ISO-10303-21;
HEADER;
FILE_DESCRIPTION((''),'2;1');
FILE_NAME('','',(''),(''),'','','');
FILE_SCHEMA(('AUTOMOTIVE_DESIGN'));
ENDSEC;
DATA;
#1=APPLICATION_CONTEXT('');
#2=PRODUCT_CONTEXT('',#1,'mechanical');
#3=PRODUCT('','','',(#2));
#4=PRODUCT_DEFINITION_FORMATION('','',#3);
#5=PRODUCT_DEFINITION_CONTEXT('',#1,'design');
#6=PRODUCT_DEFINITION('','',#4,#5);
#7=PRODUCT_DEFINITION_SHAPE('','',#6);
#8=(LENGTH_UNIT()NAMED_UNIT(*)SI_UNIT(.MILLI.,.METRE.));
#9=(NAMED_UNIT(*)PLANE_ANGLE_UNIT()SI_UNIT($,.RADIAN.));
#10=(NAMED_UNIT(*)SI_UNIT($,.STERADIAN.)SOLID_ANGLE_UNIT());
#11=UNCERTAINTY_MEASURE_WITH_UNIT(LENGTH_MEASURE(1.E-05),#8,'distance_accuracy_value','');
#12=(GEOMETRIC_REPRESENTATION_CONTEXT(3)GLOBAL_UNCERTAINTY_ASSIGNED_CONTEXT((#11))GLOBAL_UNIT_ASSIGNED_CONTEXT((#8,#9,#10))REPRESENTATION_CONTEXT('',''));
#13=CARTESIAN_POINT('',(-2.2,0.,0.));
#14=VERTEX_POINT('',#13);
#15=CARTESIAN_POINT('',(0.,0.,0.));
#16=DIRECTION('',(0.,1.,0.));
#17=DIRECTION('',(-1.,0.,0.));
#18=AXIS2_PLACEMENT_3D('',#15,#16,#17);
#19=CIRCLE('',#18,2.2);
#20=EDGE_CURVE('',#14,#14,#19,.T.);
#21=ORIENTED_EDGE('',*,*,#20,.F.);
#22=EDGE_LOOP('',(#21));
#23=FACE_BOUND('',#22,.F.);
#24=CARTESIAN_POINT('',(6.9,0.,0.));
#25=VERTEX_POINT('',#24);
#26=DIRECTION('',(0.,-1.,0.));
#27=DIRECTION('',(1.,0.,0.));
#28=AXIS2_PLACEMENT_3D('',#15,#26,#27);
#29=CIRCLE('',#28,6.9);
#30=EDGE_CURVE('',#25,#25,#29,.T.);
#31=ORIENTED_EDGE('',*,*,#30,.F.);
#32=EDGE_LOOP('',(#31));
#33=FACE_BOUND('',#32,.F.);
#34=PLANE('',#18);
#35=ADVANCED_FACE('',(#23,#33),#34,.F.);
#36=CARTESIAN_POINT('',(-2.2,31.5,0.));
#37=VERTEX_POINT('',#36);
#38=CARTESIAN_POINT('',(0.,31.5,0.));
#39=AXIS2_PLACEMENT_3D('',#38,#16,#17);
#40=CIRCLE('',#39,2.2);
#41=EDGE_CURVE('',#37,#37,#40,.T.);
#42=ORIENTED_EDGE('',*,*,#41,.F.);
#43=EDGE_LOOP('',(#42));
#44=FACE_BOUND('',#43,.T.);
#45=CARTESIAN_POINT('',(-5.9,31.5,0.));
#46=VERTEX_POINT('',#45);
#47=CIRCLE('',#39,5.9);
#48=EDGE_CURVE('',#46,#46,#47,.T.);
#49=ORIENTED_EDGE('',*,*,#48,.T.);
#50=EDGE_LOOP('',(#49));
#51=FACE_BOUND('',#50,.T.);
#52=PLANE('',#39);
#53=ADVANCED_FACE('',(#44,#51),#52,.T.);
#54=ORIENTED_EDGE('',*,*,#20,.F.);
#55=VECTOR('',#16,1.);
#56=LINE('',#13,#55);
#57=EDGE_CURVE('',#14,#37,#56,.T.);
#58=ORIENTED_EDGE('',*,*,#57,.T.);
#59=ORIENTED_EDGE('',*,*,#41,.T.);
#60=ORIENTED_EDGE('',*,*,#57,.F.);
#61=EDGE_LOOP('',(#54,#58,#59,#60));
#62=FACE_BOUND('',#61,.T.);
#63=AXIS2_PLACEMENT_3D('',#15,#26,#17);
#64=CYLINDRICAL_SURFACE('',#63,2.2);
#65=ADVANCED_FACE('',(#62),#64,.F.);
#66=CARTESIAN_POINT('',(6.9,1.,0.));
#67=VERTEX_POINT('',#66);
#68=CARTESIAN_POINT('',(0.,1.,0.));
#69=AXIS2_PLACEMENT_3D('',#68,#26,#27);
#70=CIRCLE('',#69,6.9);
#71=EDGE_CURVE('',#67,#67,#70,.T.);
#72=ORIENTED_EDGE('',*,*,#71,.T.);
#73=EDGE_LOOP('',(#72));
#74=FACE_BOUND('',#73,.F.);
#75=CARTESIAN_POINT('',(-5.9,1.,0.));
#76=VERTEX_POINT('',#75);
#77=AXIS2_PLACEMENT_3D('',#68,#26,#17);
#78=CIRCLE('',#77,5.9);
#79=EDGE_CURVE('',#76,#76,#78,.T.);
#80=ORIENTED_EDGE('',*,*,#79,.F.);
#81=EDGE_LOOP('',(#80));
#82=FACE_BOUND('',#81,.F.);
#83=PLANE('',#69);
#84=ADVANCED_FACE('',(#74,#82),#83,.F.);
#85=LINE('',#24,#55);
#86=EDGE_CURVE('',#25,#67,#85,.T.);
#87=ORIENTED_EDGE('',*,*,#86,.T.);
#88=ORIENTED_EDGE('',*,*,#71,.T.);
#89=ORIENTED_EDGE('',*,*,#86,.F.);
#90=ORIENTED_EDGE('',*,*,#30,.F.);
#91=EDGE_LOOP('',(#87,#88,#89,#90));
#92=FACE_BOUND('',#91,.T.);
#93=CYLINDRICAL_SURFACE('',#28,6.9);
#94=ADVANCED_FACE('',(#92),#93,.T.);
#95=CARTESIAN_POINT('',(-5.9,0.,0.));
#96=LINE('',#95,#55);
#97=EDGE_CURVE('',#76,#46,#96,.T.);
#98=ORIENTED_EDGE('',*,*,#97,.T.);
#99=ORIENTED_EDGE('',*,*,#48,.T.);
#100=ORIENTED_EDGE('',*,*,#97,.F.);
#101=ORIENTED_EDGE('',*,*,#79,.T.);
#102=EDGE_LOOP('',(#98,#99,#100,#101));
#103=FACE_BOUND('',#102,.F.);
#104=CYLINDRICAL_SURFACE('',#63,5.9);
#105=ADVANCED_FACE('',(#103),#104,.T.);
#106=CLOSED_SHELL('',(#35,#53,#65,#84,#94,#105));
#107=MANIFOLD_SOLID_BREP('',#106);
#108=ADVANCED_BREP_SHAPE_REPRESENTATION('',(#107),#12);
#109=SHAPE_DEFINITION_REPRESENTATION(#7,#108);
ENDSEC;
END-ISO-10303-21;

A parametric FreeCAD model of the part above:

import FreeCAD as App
import Part
import Sketcher

V = App.Vector
Q = App.Units.Quantity

doc = App.newDocument("Part")
params = doc.addObject("Spreadsheet::Sheet", "Params")
for row, (alias, value) in enumerate([
    ("sketch1_diameter", "11.8 mm"),
    ("sketch1_diameter2", "4.4 mm"),
    ("pad1_length", "31.5 mm"),
    ("sketch2_diameter", "13.8 mm"),
    ("sketch2_diameter2", "4.4 mm"),
    ("pad2_length", "1 mm"),
], start=1):
    params.set(f"A{row}", alias)
    params.set(f"B{row}", "=" + value)
    params.setAlias(f"B{row}", alias)

body = doc.addObject("PartDesign::Body", "Body")

sketch1 = body.newObject("Sketcher::SketchObject", "Sketch")
sketch1.AttachmentSupport = (doc.getObject("XZ_Plane"), [""])
sketch1.MapMode = "FlatFace"
sketch1.addGeometry([
    Part.Circle(V(0, 0, 0), V(0, 0, 1), 5.9),
    Part.Circle(V(0, 0, 0), V(0, 0, 1), 2.2),
], False)
sketch1.addConstraint([
    Sketcher.Constraint("Coincident", 0, 3, -1, 1),
    Sketcher.Constraint("Coincident", 1, 3, -1, 1),
    Sketcher.Constraint("Diameter", 0, Q("11.8 mm")),
    Sketcher.Constraint("Diameter", 1, Q("4.4 mm")),
])
sketch1.setExpression("Constraints[2]", "Params.sketch1_diameter")
sketch1.setExpression("Constraints[3]", "Params.sketch1_diameter2")
pad1 = body.newObject("PartDesign::Pad", "Pad")
pad1.Profile = sketch1
pad1.setExpression("Length", "Params.pad1_length")
pad1.Reversed = True

sketch2 = body.newObject("Sketcher::SketchObject", "Sketch001")
sketch2.AttachmentSupport = (doc.getObject("XZ_Plane"), [""])
sketch2.MapMode = "FlatFace"
sketch2.addGeometry([
    Part.Circle(V(0, 0, 0), V(0, 0, 1), 6.9),
    Part.Circle(V(0, 0, 0), V(0, 0, 1), 2.2),
], False)
sketch2.addConstraint([
    Sketcher.Constraint("Coincident", 0, 3, -1, 1),
    Sketcher.Constraint("Coincident", 1, 3, -1, 1),
    Sketcher.Constraint("Diameter", 0, Q("13.8 mm")),
    Sketcher.Constraint("Diameter", 1, Q("4.4 mm")),
])
sketch2.setExpression("Constraints[2]", "Params.sketch2_diameter")
sketch2.setExpression("Constraints[3]", "Params.sketch2_diameter2")
pad2 = body.newObject("PartDesign::Pad", "Pad001")
pad2.Profile = sketch2
pad2.setExpression("Length", "Params.pad2_length")
pad2.Reversed = True

doc.recompute()
